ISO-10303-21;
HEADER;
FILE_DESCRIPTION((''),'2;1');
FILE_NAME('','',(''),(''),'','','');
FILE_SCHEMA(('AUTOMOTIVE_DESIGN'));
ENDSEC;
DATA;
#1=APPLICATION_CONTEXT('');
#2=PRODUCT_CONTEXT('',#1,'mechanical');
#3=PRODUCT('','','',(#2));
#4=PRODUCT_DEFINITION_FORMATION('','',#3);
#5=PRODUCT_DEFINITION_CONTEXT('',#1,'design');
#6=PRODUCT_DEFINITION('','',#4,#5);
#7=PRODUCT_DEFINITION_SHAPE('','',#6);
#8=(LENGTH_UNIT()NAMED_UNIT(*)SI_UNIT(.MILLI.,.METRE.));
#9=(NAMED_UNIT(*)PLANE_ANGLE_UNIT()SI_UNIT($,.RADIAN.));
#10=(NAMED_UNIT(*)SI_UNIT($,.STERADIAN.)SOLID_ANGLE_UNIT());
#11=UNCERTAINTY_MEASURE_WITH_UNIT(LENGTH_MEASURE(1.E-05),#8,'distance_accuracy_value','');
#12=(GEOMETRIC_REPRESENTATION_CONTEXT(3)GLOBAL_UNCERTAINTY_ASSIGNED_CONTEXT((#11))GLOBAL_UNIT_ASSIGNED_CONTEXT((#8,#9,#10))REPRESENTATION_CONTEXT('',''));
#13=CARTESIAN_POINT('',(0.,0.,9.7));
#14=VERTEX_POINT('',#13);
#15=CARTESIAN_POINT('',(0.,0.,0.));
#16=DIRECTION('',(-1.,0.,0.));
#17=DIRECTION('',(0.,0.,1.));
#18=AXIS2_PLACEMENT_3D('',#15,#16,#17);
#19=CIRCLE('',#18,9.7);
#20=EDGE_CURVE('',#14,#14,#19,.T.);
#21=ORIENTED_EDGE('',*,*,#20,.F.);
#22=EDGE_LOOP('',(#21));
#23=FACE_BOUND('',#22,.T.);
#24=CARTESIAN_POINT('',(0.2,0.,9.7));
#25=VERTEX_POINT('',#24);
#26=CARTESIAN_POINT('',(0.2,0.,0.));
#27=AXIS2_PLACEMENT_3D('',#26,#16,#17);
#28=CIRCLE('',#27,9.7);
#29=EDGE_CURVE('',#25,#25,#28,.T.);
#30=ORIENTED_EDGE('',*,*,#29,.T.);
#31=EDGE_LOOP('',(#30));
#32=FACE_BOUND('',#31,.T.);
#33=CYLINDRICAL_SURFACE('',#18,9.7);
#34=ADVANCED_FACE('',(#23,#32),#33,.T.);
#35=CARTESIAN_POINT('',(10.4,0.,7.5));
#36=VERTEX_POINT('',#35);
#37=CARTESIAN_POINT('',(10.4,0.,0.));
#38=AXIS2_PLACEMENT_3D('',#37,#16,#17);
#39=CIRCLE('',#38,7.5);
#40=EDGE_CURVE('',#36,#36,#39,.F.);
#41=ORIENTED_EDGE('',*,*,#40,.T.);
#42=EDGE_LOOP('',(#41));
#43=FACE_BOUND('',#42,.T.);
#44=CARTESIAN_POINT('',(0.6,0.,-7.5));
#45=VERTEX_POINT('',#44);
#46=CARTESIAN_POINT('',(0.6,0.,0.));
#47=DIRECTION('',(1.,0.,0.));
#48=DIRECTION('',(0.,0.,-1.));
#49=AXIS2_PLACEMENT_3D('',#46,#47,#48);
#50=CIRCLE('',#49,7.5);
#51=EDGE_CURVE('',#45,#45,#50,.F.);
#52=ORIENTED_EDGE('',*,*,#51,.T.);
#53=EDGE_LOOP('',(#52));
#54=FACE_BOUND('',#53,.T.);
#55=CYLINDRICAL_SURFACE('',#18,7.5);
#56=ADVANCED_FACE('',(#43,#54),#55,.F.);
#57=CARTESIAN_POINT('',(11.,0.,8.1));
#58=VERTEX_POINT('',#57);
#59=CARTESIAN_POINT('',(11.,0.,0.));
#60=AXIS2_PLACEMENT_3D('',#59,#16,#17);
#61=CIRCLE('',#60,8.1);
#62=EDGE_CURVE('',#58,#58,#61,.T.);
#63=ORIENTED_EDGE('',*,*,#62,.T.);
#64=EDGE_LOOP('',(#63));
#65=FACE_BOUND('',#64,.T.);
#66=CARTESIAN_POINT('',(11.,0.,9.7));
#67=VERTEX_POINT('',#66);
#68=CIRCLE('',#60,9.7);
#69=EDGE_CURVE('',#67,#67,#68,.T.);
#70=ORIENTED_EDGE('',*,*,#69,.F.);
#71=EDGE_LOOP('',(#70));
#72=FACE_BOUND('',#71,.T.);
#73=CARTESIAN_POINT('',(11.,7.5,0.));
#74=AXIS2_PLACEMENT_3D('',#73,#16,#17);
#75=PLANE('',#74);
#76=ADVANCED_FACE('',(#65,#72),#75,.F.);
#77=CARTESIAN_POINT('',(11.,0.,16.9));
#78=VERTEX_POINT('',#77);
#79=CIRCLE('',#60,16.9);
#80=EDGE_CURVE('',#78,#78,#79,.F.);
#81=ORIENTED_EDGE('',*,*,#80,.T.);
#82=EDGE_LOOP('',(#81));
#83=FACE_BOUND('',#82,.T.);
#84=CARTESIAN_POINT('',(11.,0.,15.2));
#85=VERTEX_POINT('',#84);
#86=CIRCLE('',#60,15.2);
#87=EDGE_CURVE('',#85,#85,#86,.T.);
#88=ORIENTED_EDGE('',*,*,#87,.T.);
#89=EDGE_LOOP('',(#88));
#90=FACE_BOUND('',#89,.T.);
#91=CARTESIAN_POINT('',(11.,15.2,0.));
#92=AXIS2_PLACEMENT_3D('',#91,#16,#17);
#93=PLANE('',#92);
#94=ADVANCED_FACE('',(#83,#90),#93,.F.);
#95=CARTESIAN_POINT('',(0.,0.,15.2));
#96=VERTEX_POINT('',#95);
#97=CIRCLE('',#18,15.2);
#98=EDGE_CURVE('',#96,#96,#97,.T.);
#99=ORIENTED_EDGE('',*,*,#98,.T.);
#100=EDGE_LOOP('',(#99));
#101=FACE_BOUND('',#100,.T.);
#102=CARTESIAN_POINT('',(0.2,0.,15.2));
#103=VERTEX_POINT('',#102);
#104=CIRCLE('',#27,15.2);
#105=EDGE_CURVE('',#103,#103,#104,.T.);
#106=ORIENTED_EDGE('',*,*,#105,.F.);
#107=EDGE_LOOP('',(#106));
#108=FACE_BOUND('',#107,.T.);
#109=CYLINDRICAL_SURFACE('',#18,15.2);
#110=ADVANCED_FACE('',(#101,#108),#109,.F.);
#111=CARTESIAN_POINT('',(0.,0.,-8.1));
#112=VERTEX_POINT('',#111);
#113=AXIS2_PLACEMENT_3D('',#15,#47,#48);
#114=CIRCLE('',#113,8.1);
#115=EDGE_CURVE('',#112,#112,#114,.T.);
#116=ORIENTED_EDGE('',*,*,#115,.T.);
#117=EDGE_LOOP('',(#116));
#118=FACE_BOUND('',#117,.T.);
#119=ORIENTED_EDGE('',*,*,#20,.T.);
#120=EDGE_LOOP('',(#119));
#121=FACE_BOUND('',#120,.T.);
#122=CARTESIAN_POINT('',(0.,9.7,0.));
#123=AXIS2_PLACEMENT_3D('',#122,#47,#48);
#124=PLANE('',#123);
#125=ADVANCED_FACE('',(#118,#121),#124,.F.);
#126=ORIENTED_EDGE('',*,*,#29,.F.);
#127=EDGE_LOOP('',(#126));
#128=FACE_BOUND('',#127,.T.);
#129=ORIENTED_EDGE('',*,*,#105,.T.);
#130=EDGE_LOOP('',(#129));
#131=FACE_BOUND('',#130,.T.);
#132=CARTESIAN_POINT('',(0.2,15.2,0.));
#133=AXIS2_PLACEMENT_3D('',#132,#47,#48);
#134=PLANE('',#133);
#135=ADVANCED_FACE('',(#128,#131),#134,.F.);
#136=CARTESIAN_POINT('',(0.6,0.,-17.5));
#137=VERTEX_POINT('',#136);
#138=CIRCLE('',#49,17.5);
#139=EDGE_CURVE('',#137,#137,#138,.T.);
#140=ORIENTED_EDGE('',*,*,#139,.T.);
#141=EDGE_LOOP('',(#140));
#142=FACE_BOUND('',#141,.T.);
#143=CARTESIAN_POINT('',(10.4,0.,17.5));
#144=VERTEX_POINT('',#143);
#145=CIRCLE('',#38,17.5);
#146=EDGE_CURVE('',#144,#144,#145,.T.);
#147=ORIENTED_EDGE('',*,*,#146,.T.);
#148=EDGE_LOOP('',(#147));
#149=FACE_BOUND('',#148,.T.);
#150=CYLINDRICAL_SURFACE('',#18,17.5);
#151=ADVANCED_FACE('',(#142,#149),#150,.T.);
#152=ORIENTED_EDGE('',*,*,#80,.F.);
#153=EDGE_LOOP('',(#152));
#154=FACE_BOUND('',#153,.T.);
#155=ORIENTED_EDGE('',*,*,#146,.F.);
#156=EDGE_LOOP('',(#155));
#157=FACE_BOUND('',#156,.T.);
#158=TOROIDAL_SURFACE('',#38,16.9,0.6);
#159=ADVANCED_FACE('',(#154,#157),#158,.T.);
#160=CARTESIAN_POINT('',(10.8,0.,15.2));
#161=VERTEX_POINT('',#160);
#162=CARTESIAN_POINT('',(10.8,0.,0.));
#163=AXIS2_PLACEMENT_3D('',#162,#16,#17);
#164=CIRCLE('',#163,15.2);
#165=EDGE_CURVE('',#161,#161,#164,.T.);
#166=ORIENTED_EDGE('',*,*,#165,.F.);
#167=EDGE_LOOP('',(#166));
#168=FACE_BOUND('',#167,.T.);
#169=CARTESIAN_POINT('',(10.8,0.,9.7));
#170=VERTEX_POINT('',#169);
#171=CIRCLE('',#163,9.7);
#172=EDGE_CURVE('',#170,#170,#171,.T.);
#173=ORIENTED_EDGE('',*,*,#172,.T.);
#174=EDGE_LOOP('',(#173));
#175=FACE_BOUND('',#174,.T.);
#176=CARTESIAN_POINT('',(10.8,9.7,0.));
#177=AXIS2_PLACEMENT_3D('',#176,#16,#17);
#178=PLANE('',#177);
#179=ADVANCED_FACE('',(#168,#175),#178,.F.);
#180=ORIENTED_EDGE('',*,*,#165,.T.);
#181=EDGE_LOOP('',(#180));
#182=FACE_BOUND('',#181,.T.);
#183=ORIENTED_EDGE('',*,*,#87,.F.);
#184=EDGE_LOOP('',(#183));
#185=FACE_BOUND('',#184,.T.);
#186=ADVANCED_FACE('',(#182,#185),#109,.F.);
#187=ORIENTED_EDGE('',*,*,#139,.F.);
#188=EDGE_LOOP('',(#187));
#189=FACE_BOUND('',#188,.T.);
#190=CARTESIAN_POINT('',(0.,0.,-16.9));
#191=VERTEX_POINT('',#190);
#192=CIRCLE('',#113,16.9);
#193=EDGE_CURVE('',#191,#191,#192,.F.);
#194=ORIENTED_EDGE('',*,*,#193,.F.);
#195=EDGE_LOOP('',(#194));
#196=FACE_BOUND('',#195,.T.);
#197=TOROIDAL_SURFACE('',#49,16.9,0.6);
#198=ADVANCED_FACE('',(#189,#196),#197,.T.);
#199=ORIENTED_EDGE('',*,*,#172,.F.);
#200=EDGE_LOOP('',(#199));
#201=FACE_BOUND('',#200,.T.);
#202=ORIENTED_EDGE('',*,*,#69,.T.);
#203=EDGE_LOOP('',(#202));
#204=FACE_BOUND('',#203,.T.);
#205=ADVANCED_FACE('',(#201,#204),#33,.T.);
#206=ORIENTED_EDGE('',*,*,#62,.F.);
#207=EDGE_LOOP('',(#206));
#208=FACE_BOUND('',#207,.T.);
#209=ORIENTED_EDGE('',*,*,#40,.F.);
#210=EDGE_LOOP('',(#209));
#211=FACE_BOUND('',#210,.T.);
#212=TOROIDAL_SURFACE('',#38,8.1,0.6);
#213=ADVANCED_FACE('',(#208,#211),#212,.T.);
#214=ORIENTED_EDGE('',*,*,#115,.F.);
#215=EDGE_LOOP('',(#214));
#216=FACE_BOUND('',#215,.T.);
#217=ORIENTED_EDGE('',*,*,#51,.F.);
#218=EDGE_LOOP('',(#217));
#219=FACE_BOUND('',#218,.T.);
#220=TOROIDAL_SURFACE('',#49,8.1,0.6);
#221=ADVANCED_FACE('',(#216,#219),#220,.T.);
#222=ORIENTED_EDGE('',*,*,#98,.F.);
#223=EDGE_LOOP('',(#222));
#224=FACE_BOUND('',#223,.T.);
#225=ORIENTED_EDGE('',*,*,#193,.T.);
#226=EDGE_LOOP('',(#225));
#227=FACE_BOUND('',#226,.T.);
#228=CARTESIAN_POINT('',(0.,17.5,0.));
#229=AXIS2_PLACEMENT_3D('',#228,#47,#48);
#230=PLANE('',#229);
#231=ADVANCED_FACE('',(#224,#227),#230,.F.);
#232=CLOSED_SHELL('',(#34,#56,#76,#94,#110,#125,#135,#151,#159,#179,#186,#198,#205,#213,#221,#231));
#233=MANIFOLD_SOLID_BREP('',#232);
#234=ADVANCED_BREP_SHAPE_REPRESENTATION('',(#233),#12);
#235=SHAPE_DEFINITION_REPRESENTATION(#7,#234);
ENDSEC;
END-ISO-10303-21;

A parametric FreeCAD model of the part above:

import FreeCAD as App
import Part
import Sketcher

V = App.Vector


def edges_at(feature, points):
    """Names of the edges that pass closest to the given points."""
    edges = feature.Shape.Edges
    near = lambda p: min(range(len(edges)), key=lambda i: edges[i].distToShape(Part.Vertex(*p))[0])
    return sorted({f"Edge{near(p) + 1}" for p in points})

doc = App.newDocument("Part")
body = doc.addObject("PartDesign::Body", "Body")

# Sketch on XY plane
sketch1 = body.newObject("Sketcher::SketchObject", "Sketch")
sketch1.AttachmentSupport = (doc.getObject("XY_Plane"), [""])
sketch1.MapMode = "FlatFace"
sketch1.addGeometry([
    Part.LineSegment(V(0, 9.7, 0), V(0, 7.5, 0)),  # 0
    Part.LineSegment(V(0, 7.5, 0), V(11, 7.5, 0)),  # 1
    Part.LineSegment(V(11, 7.5, 0), V(11, 9.7, 0)),  # 2
    Part.LineSegment(V(11, 9.7, 0), V(10.8, 9.7, 0)),  # 3
    Part.LineSegment(V(10.8, 9.7, 0), V(10.8, 15.2, 0)),  # 4
    Part.LineSegment(V(10.8, 15.2, 0), V(11, 15.2, 0)),  # 5
    Part.LineSegment(V(11, 15.2, 0), V(11, 17.5, 0)),  # 6
    Part.LineSegment(V(11, 17.5, 0), V(0, 17.5, 0)),  # 7
    Part.LineSegment(V(0, 17.5, 0), V(0, 15.2, 0)),  # 8
    Part.LineSegment(V(0, 15.2, 0), V(0.2, 15.2, 0)),  # 9
    Part.LineSegment(V(0.2, 15.2, 0), V(0.2, 9.7, 0)),  # 10
    Part.LineSegment(V(0.2, 9.7, 0), V(0, 9.7, 0)),  # 11
], False)
sketch1.addConstraint([
    Sketcher.Constraint("Coincident", 0, 2, 1, 1),
    Sketcher.Constraint("Coincident", 1, 2, 2, 1),
    Sketcher.Constraint("Coincident", 2, 2, 3, 1),
    Sketcher.Constraint("Coincident", 3, 2, 4, 1),
    Sketcher.Constraint("Coincident", 4, 2, 5, 1),
    Sketcher.Constraint("Coincident", 5, 2, 6, 1),
    Sketcher.Constraint("Coincident", 6, 2, 7, 1),
    Sketcher.Constraint("Coincident", 7, 2, 8, 1),
    Sketcher.Constraint("Coincident", 8, 2, 9, 1),
    Sketcher.Constraint("Coincident", 9, 2, 10, 1),
    Sketcher.Constraint("Coincident", 10, 2, 11, 1),
    Sketcher.Constraint("Coincident", 11, 2, 0, 1),
    Sketcher.Constraint("Vertical", 0),
    Sketcher.Constraint("Horizontal", 1),
    Sketcher.Constraint("Vertical", 2),
    Sketcher.Constraint("Horizontal", 3),
    Sketcher.Constraint("Vertical", 4),
    Sketcher.Constraint("Horizontal", 5),
    Sketcher.Constraint("Vertical", 6),
    Sketcher.Constraint("Horizontal", 7),
    Sketcher.Constraint("Vertical", 8),
    Sketcher.Constraint("Horizontal", 9),
    Sketcher.Constraint("Vertical", 10),
    Sketcher.Constraint("Horizontal", 11),
    Sketcher.Constraint("PointOnObject", 0, 2, -2),
    Sketcher.Constraint("PointOnObject", 7, 2, -2),
    Sketcher.Constraint("Horizontal", 5, 2, 8, 2),
    Sketcher.Constraint("Horizontal", 3, 2, 10, 2),
    Sketcher.Constraint("Vertical", 2, 2, 5, 2),
    Sketcher.Constraint("Equal", 5, 9),
    Sketcher.Constraint("DistanceX", 1, 1, 1, 2, 11.0),
    Sketcher.Constraint("DistanceX", 3, 2, 3, 1, 0.2),
    Sketcher.Constraint("DistanceY", 0, 2, 0, 1, 2.2),
    Sketcher.Constraint("DistanceY", 4, 1, 4, 2, 5.5),
    Sketcher.Constraint("DistanceY", 6, 1, 6, 2, 2.3),
    Sketcher.Constraint("DistanceY", -1, 1, 0, 2, 7.5),
])
revolution = body.newObject("PartDesign::Revolution", "Revolution")
revolution.Profile = sketch1
revolution.ReferenceAxis = (sketch1, ["H_Axis"])
revolution.Angle = 360
doc.recompute()

fillet = body.newObject("PartDesign::Fillet", "Fillet")
fillet.Base = (revolution, edges_at(revolution, [
    (11, 0, -17.5),
    (11, 0, -7.5),
    (0, 0, -7.5),
    (0, 0, -17.5),
]))
fillet.Radius = 0.6

doc.recompute()
